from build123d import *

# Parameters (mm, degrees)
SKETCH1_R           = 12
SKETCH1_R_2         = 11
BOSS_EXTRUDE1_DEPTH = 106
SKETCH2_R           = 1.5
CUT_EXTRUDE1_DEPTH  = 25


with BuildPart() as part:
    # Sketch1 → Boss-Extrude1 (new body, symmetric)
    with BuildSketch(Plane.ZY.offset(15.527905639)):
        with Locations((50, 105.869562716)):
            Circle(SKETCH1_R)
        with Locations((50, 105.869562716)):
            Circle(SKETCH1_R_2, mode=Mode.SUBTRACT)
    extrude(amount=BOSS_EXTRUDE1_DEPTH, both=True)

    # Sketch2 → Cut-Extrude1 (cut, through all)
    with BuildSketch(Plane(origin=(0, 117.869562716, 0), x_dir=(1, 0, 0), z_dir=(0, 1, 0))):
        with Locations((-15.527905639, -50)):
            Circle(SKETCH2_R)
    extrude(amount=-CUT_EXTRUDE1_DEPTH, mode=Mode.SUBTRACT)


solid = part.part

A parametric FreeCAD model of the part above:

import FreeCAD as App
import Part
import Sketcher
from FreeCAD import Vector

doc = App.newDocument("Part")
params = doc.addObject("Spreadsheet::Sheet", "Params")
for row, (alias, value) in enumerate([
    ("sketch1_diameter", "24 mm"),
    ("sketch1_diameter2", "22 mm"),
    ("pad1_length", "212 mm"),
    ("sketch2_diameter", "3 mm"),
], start=1):
    params.set(f"A{row}", alias)
    params.set(f"B{row}", "=" + value)
    params.setAlias(f"B{row}", alias)

body = doc.addObject("PartDesign::Body", "Body")

sketch1 = body.newObject("Sketcher::SketchObject", "Sketch")
sketch1.AttachmentSupport = (doc.getObject("YZ_Plane"), [""])
sketch1.MapMode = "FlatFace"
sketch1.AttachmentOffset = App.Placement(Vector(0, 0, -15.527906), App.Rotation())
sketch1.addGeometry(Part.Circle(Vector(106, 50, 0), Vector(0, 0, 1), 12), False)
sketch1.addGeometry(Part.Circle(Vector(106, 50, 0), Vector(0, 0, 1), 11), False)
sketch1.addConstraint(Sketcher.Constraint("Coincident", 1, 3, 0, 3))
sketch1.addConstraint(Sketcher.Constraint("Diameter", 0, 24.0))
sketch1.addConstraint(Sketcher.Constraint("Diameter", 1, 22.0))
sketch1.addConstraint(Sketcher.Constraint("DistanceY", -1, 1, 0, 3, 50.0))
sketch1.addConstraint(Sketcher.Constraint("DistanceX", -1, 1, 0, 3, 105.869563))
sketch1.setExpression("Constraints[1]", "Params.sketch1_diameter")
sketch1.setExpression("Constraints[2]", "Params.sketch1_diameter2")
pad1 = body.newObject("PartDesign::Pad", "Pad")
pad1.Profile = sketch1
pad1.setExpression("Length", "Params.pad1_length")
pad1.Midplane = True

sketch2 = body.newObject("Sketcher::SketchObject", "Sketch001")
sketch2.AttachmentSupport = (doc.getObject("XZ_Plane"), [""])
sketch2.MapMode = "FlatFace"
sketch2.AttachmentOffset = App.Placement(Vector(0, 0, -117.869563), App.Rotation())
sketch2.addGeometry(Part.Circle(Vector(-15.5, 50, 0), Vector(0, 0, 1), 1.5), False)
sketch2.addConstraint(Sketcher.Constraint("Diameter", 0, 3.0))
sketch2.addConstraint(Sketcher.Constraint("DistanceY", -1, 1, 0, 3, 50.0))
sketch2.addConstraint(Sketcher.Constraint("DistanceX", 0, 3, -1, 1, 15.527906))
sketch2.setExpression("Constraints[0]", "Params.sketch2_diameter")
pocket1 = body.newObject("PartDesign::Pocket", "Pocket")
pocket1.Profile = sketch2
pocket1.Type = "ThroughAll"
pocket1.Reversed = True

doc.recompute()
